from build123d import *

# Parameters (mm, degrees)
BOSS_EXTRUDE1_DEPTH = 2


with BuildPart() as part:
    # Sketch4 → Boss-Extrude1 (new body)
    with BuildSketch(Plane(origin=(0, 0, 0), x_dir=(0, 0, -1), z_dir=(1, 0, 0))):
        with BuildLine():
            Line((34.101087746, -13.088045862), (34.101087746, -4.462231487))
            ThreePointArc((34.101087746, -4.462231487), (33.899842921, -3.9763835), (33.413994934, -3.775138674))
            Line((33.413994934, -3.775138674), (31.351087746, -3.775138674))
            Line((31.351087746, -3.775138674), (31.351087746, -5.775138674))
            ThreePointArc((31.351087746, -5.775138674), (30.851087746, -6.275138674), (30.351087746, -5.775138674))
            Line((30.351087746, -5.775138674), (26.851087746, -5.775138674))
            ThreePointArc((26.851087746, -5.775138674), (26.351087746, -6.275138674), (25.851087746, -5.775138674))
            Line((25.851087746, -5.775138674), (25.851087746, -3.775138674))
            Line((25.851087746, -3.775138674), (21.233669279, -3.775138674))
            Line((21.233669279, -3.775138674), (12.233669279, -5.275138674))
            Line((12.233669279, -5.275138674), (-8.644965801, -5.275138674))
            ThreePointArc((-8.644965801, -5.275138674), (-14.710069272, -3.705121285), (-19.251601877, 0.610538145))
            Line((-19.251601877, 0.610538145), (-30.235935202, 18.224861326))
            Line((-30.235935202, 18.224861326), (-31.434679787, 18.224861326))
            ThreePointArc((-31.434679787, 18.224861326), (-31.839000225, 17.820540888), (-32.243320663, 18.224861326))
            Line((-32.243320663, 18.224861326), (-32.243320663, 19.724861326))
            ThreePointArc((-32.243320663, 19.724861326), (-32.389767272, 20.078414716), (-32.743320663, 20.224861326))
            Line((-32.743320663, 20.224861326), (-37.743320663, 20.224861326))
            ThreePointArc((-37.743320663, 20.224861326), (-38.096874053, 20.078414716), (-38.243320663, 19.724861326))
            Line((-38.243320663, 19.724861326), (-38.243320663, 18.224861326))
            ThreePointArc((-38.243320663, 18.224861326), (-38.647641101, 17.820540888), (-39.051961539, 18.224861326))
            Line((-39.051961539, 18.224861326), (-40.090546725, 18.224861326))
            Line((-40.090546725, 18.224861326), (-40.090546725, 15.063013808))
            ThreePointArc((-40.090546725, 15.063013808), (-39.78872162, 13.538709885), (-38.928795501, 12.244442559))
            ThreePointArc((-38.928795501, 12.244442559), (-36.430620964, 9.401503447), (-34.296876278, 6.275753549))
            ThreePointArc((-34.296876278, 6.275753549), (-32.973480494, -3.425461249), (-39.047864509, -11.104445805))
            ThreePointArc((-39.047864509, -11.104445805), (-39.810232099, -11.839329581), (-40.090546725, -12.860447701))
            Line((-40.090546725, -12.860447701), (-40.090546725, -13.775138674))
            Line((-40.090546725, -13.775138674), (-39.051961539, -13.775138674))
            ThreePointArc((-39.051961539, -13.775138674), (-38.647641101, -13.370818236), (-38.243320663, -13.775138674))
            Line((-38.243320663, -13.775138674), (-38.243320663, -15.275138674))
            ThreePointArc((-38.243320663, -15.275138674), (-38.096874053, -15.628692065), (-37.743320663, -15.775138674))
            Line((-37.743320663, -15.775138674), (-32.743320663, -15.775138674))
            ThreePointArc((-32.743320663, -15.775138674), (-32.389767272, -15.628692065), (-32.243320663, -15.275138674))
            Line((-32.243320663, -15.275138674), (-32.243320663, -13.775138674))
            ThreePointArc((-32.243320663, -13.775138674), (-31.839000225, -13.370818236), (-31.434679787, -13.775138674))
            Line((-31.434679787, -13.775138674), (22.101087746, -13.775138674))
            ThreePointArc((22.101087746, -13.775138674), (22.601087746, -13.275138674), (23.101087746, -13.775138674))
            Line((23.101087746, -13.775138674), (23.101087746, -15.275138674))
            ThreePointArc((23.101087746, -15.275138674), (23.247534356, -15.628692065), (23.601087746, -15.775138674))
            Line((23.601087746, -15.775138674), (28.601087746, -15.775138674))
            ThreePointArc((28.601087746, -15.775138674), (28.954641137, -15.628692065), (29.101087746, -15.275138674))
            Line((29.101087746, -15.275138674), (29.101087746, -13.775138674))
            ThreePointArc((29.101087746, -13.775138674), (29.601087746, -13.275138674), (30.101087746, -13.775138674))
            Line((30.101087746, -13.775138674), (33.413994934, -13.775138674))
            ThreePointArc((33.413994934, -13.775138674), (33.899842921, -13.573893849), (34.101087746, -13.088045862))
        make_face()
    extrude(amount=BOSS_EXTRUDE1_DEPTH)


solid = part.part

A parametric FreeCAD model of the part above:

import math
import FreeCAD as App
import Part
import Sketcher

V = App.Vector
Q = App.Units.Quantity

doc = App.newDocument("Part")
params = doc.addObject("Spreadsheet::Sheet", "Params")
for row, (alias, value) in enumerate([
    ("sketch1_radius", "4 mm"),
    ("sketch1_radius2", "2 mm"),
    ("sketch1_radius3", "0.5 mm"),
    ("sketch1_radius4", "12.5 mm"),
    ("sketch1_width", "2 mm"),
    ("pad1_length", "2 mm"),
], start=1):
    params.set(f"A{row}", alias)
    params.set(f"B{row}", "=" + value)
    params.setAlias(f"B{row}", alias)

body = doc.addObject("PartDesign::Body", "Body")

# Sketch on YZ plane
sketch1 = doc.addObject("Sketcher::SketchObject", "Sketch")
body.addObject(sketch1)
sketch1.AttachmentSupport = (doc.YZ_Plane, [""])
sketch1.MapMode = "FlatFace"
sketch1.addGeometry(Part.LineSegment(V(-13.09, -34.1, 0), V(-4.46, -34.1, 0)), False)
sketch1.addGeometry(Part.ArcOfCircle(Part.Circle(V(-4.46, -33.41, 0), V(0, 0, 1), 0.69), math.radians(-90), math.radians(0)), False)
sketch1.addGeometry(Part.LineSegment(V(-3.78, -33.41, 0), V(-3.78, -31.35, 0)), False)
sketch1.addGeometry(Part.LineSegment(V(-3.78, -31.35, 0), V(-5.78, -31.35, 0)), False)
sketch1.addGeometry(Part.ArcOfCircle(Part.Circle(V(-5.78, -30.85, 0), V(0, 0, 1), 0.5), math.radians(90), math.radians(270)), False)
sketch1.addGeometry(Part.LineSegment(V(-5.78, -30.35, 0), V(-5.78, -26.85, 0)), False)
sketch1.addGeometry(Part.ArcOfCircle(Part.Circle(V(-5.78, -26.35, 0), V(0, 0, 1), 0.5), math.radians(90), math.radians(270)), False)
sketch1.addGeometry(Part.LineSegment(V(-5.78, -25.85, 0), V(-3.78, -25.85, 0)), False)
sketch1.addGeometry(Part.LineSegment(V(-3.78, -25.85, 0), V(-3.78, -21.23, 0)), False)
sketch1.addGeometry(Part.LineSegment(V(-3.78, -21.23, 0), V(-5.28, -12.23, 0)), False)
sketch1.addGeometry(Part.LineSegment(V(-5.28, -12.23, 0), V(-5.28, 8.64, 0)), False)
sketch1.addGeometry(Part.ArcOfCircle(Part.Circle(V(7.22, 8.64, 0), V(0, 0, 1), 12.5), math.radians(122), math.radians(180)), False)
sketch1.addGeometry(Part.LineSegment(V(0.61, 19.25, 0), V(18.22, 30.24, 0)), False)
sketch1.addGeometry(Part.LineSegment(V(18.22, 30.24, 0), V(18.22, 31.43, 0)), False)
sketch1.addGeometry(Part.ArcOfCircle(Part.Circle(V(18.22, 31.84, 0), V(0, 0, 1), 0.4), math.radians(90), math.radians(270)), False)
sketch1.addGeometry(Part.LineSegment(V(18.22, 32.24, 0), V(19.72, 32.24, 0)), False)
sketch1.addGeometry(Part.ArcOfCircle(Part.Circle(V(19.72, 32.74, 0), V(0, 0, 1), 0.5), math.radians(-90), math.radians(0)), False)
sketch1.addGeometry(Part.LineSegment(V(20.22, 32.74, 0), V(20.22, 37.74, 0)), False)
sketch1.addGeometry(Part.ArcOfCircle(Part.Circle(V(19.72, 37.74, 0), V(0, 0, 1), 0.5), math.radians(0), math.radians(90)), False)
sketch1.addGeometry(Part.LineSegment(V(19.72, 38.24, 0), V(18.22, 38.24, 0)), False)
sketch1.addGeometry(Part.ArcOfCircle(Part.Circle(V(18.22, 38.65, 0), V(0, 0, 1), 0.4), math.radians(90), math.radians(270)), False)
sketch1.addGeometry(Part.LineSegment(V(18.22, 39.05, 0), V(18.22, 40.09, 0)), False)
sketch1.addGeometry(Part.LineSegment(V(18.22, 40.09, 0), V(15.06, 40.09, 0)), False)
sketch1.addGeometry(Part.ArcOfCircle(Part.Circle(V(15.06, 36.09, 0), V(0, 0, 1), 4), math.radians(90), math.radians(135)), False)
sketch1.addGeometry(Part.ArcOfCircle(Part.Circle(V(-9.63, 60.96, 0), V(0, 0, 1), 31.05), math.radians(-59.18), math.radians(-45.2)), False)
sketch1.addGeometry(Part.ArcOfCircle(Part.Circle(V(-0.13, 45.03, 0), V(0, 0, 1), 12.5), math.radians(-151), math.radians(-59)), False)
sketch1.addGeometry(Part.ArcOfCircle(Part.Circle(V(-12.86, 38.09, 0), V(0, 0, 1), 2), math.radians(29), math.radians(90)), False)
sketch1.addGeometry(Part.LineSegment(V(-12.86, 40.09, 0), V(-13.78, 40.09, 0)), False)
sketch1.addGeometry(Part.LineSegment(V(-13.78, 40.09, 0), V(-13.78, 39.05, 0)), False)
sketch1.addGeometry(Part.ArcOfCircle(Part.Circle(V(-13.78, 38.65, 0), V(0, 0, 1), 0.4), math.radians(-90), math.radians(90)), False)
sketch1.addGeometry(Part.LineSegment(V(-13.78, 38.24, 0), V(-15.28, 38.24, 0)), False)
sketch1.addGeometry(Part.ArcOfCircle(Part.Circle(V(-15.28, 37.74, 0), V(0, 0, 1), 0.5), math.radians(90), math.radians(180)), False)
sketch1.addGeometry(Part.LineSegment(V(-15.78, 37.74, 0), V(-15.78, 32.74, 0)), False)
sketch1.addGeometry(Part.ArcOfCircle(Part.Circle(V(-15.28, 32.74, 0), V(0, 0, 1), 0.5), math.radians(180), math.radians(270)), False)
sketch1.addGeometry(Part.LineSegment(V(-15.28, 32.24, 0), V(-13.78, 32.24, 0)), False)
sketch1.addGeometry(Part.ArcOfCircle(Part.Circle(V(-13.78, 31.84, 0), V(0, 0, 1), 0.4), math.radians(-90), math.radians(90)), False)
sketch1.addGeometry(Part.LineSegment(V(-13.78, 31.43, 0), V(-13.78, -22.1, 0)), False)
sketch1.addGeometry(Part.ArcOfCircle(Part.Circle(V(-13.78, -22.6, 0), V(0, 0, 1), 0.5), math.radians(-90), math.radians(90)), False)
sketch1.addGeometry(Part.LineSegment(V(-13.78, -23.1, 0), V(-15.28, -23.1, 0)), False)
sketch1.addGeometry(Part.ArcOfCircle(Part.Circle(V(-15.28, -23.6, 0), V(0, 0, 1), 0.5), math.radians(90), math.radians(180)), False)
sketch1.addGeometry(Part.LineSegment(V(-15.78, -23.6, 0), V(-15.78, -28.6, 0)), False)
sketch1.addGeometry(Part.ArcOfCircle(Part.Circle(V(-15.28, -28.6, 0), V(0, 0, 1), 0.5), math.radians(180), math.radians(270)), False)
sketch1.addGeometry(Part.LineSegment(V(-15.28, -29.1, 0), V(-13.78, -29.1, 0)), False)
sketch1.addGeometry(Part.ArcOfCircle(Part.Circle(V(-13.78, -29.6, 0), V(0, 0, 1), 0.5), math.radians(-90), math.radians(90)), False)
sketch1.addGeometry(Part.LineSegment(V(-13.78, -30.1, 0), V(-13.78, -33.41, 0)), False)
sketch1.addGeometry(Part.ArcOfCircle(Part.Circle(V(-13.09, -33.41, 0), V(0, 0, 1), 0.69), math.radians(180), math.radians(270)), False)
sketch1.addConstraint(Sketcher.Constraint("Tangent", 0, 2, 1, 1))
sketch1.addConstraint(Sketcher.Constraint("Tangent", 1, 2, 2, 1))
sketch1.addConstraint(Sketcher.Constraint("Coincident", 2, 2, 3, 1))
sketch1.addConstraint(Sketcher.Constraint("Tangent", 3, 2, 4, 2))
sketch1.addConstraint(Sketcher.Constraint("Coincident", 4, 1, 5, 1))
sketch1.addConstraint(Sketcher.Constraint("Coincident", 5, 2, 6, 2))
sketch1.addConstraint(Sketcher.Constraint("Tangent", 6, 1, 7, 1))
sketch1.addConstraint(Sketcher.Constraint("Coincident", 7, 2, 8, 1))
sketch1.addConstraint(Sketcher.Constraint("Coincident", 8, 2, 9, 1))
sketch1.addConstraint(Sketcher.Constraint("Coincident", 9, 2, 10, 1))
sketch1.addConstraint(Sketcher.Constraint("Tangent", 10, 2, 11, 2))
sketch1.addConstraint(Sketcher.Constraint("Tangent", 11, 1, 12, 1))
sketch1.addConstraint(Sketcher.Constraint("Coincident", 12, 2, 13, 1))
sketch1.addConstraint(Sketcher.Constraint("Coincident", 13, 2, 14, 2))
sketch1.addConstraint(Sketcher.Constraint("Tangent", 14, 1, 15, 1))
sketch1.addConstraint(Sketcher.Constraint("Tangent", 15, 2, 16, 1))
sketch1.addConstraint(Sketcher.Constraint("Tangent", 16, 2, 17, 1))
sketch1.addConstraint(Sketcher.Constraint("Tangent", 17, 2, 18, 1))
sketch1.addConstraint(Sketcher.Constraint("Tangent", 18, 2, 19, 1))
sketch1.addConstraint(Sketcher.Constraint("Tangent", 19, 2, 20, 2))
sketch1.addConstraint(Sketcher.Constraint("Coincident", 20, 1, 21, 1))
sketch1.addConstraint(Sketcher.Constraint("Coincident", 21, 2, 22, 1))
sketch1.addConstraint(Sketcher.Constraint("Tangent", 22, 2, 23, 1))
sketch1.addConstraint(Sketcher.Constraint("Tangent", 23, 2, 24, 2))
sketch1.addConstraint(Sketcher.Constraint("Tangent", 24, 1, 25, 2))
sketch1.addConstraint(Sketcher.Constraint("Tangent", 25, 1, 26, 1))
sketch1.addConstraint(Sketcher.Constraint("Tangent", 26, 2, 27, 1))
sketch1.addConstraint(Sketcher.Constraint("Coincident", 27, 2, 28, 1))
sketch1.addConstraint(Sketcher.Constraint("Coincident", 28, 2, 29, 2))
sketch1.addConstraint(Sketcher.Constraint("Tangent", 29, 1, 30, 1))
sketch1.addConstraint(Sketcher.Constraint("Tangent", 30, 2, 31, 1))
sketch1.addConstraint(Sketcher.Constraint("Tangent", 31, 2, 32, 1))
sketch1.addConstraint(Sketcher.Constraint("Tangent", 32, 2, 33, 1))
sketch1.addConstraint(Sketcher.Constraint("Tangent", 33, 2, 34, 1))
sketch1.addConstraint(Sketcher.Constraint("Tangent", 34, 2, 35, 2))
sketch1.addConstraint(Sketcher.Constraint("Coincident", 35, 1, 36, 1))
sketch1.addConstraint(Sketcher.Constraint("Coincident", 36, 2, 37, 2))
sketch1.addConstraint(Sketcher.Constraint("Tangent", 37, 1, 38, 1))
sketch1.addConstraint(Sketcher.Constraint("Tangent", 38, 2, 39, 1))
sketch1.addConstraint(Sketcher.Constraint("Tangent", 39, 2, 40, 1))
sketch1.addConstraint(Sketcher.Constraint("Tangent", 40, 2, 41, 1))
sketch1.addConstraint(Sketcher.Constraint("Tangent", 41, 2, 42, 1))
sketch1.addConstraint(Sketcher.Constraint("Tangent", 42, 2, 43, 2))
sketch1.addConstraint(Sketcher.Constraint("Coincident", 43, 1, 44, 1))
sketch1.addConstraint(Sketcher.Constraint("Tangent", 44, 2, 45, 1))
sketch1.addConstraint(Sketcher.Constraint("Tangent", 45, 2, 0, 1))
sketch1.addConstraint(Sketcher.Constraint("Horizontal", 0))
sketch1.addConstraint(Sketcher.Constraint("Vertical", 2))
sketch1.addConstraint(Sketcher.Constraint("Horizontal", 3))
sketch1.addConstraint(Sketcher.Constraint("Vertical", 5))
sketch1.addConstraint(Sketcher.Constraint("Horizontal", 7))
sketch1.addConstraint(Sketcher.Constraint("Vertical", 8))
sketch1.addConstraint(Sketcher.Constraint("Vertical", 10))
sketch1.addConstraint(Sketcher.Constraint("Vertical", 13))
sketch1.addConstraint(Sketcher.Constraint("Horizontal", 15))
sketch1.addConstraint(Sketcher.Constraint("Vertical", 17))
sketch1.addConstraint(Sketcher.Constraint("Horizontal", 19))
sketch1.addConstraint(Sketcher.Constraint("Vertical", 21))
sketch1.addConstraint(Sketcher.Constraint("Horizontal", 22))
sketch1.addConstraint(Sketcher.Constraint("Horizontal", 27))
sketch1.addConstraint(Sketcher.Constraint("Vertical", 28))
sketch1.addConstraint(Sketcher.Constraint("Horizontal", 30))
sketch1.addConstraint(Sketcher.Constraint("Vertical", 32))
sketch1.addConstraint(Sketcher.Constraint("Horizontal", 34))
sketch1.addConstraint(Sketcher.Constraint("Vertical", 36))
sketch1.addConstraint(Sketcher.Constraint("Horizontal", 38))
sketch1.addConstraint(Sketcher.Constraint("Vertical", 40))
sketch1.addConstraint(Sketcher.Constraint("Horizontal", 42))
sketch1.addConstraint(Sketcher.Constraint("Vertical", 44))
sketch1.addConstraint(Sketcher.Constraint("Equal", 4, 6))
sketch1.addConstraint(Sketcher.Constraint("Equal", 6, 16))
sketch1.addConstraint(Sketcher.Constraint("Equal", 16, 18))
sketch1.addConstraint(Sketcher.Constraint("Equal", 14, 20))
sketch1.addConstraint(Sketcher.Constraint("Equal", 11, 25))
sketch1.addConstraint(Sketcher.Constraint("Equal", 20, 29))
sketch1.addConstraint(Sketcher.Constraint("Equal", 18, 31))
sketch1.addConstraint(Sketcher.Constraint("Equal", 31, 33))
sketch1.addConstraint(Sketcher.Constraint("Equal", 29, 35))
sketch1.addConstraint(Sketcher.Constraint("Equal", 33, 37))
sketch1.addConstraint(Sketcher.Constraint("Equal", 37, 39))
sketch1.addConstraint(Sketcher.Constraint("Equal", 39, 41))
sketch1.addConstraint(Sketcher.Constraint("Equal", 41, 43))
sketch1.addConstraint(Sketcher.Constraint("Equal", 1, 45))
sketch1.addConstraint(Sketcher.Constraint("Horizontal", 20, 3, 29, 3))
sketch1.addConstraint(Sketcher.Constraint("Horizontal", 16, 3, 33, 3))
sketch1.addConstraint(Sketcher.Constraint("Horizontal", 22, 2, 26, 2))
sketch1.addConstraint(Sketcher.Constraint("Vertical", 4, 3, 6, 3))
sketch1.addConstraint(Sketcher.Constraint("Vertical", 14, 3, 20, 3))
sketch1.addConstraint(Sketcher.Constraint("Vertical", 29, 3, 35, 3))
sketch1.addConstraint(Sketcher.Constraint("Vertical", 35, 3, 37, 3))
sketch1.addConstraint(Sketcher.Constraint("Vertical", 33, 3, 39, 3))
sketch1.addConstraint(Sketcher.Constraint("Vertical", 37, 3, 43, 3))
sketch1.addConstraint(Sketcher.Constraint("Vertical", 3, 2, 4, 1))
sketch1.addConstraint(Sketcher.Constraint("Vertical", 2, 2, 7, 2))
sketch1.addConstraint(Sketcher.Constraint("Vertical", 20, 3, 12, 2))
sketch1.addConstraint(Sketcher.Constraint("Vertical", 19, 2, 20, 1))
sketch1.addConstraint(Sketcher.Constraint("Vertical", 43, 3, 27, 2))
sketch1.addConstraint(Sketcher.Constraint("Vertical", 34, 2, 35, 1))
sketch1.addConstraint(Sketcher.Constraint("Vertical", 42, 2, 43, 1))
sketch1.addConstraint(Sketcher.Constraint("Equal", 19, 30))
sketch1.addConstraint(Sketcher.Constraint("Equal", 32, 40))
sketch1.addConstraint(Sketcher.Constraint("Radius", 23, Q("4 mm")))
sketch1.addConstraint(Sketcher.Constraint("Radius", 26, Q("2 mm")))
sketch1.addConstraint(Sketcher.Constraint("Radius", 4, Q("0.5 mm")))
sketch1.addConstraint(Sketcher.Constraint("Radius", 11, Q("12.5 mm")))
sketch1.addConstraint(Sketcher.Constraint("DistanceX", 3, 2, 3, 1, Q("2 mm")))
sketch1.addConstraint(Sketcher.Constraint("DistanceY", 17, 1, 17, 2, Q("5 mm")))
sketch1.addConstraint(Sketcher.Constraint("DistanceX", 15, 1, 15, 2, Q("1.5 mm")))
sketch1.addConstraint(Sketcher.Constraint("DistanceY", 5, 1, 5, 2, Q("3.5 mm")))
sketch1.addConstraint(Sketcher.Constraint("Radius", 14, Q("0.40432 mm")))
sketch1.addConstraint(Sketcher.Constraint("Radius", 24, Q("31.05008 mm")))
sketch1.addConstraint(Sketcher.Constraint("DistanceY", -1, 1, 14, 3, Q("31.839 mm")))
sketch1.addConstraint(Sketcher.Constraint("Radius", 1, Q("0.687093 mm")))
sketch1.addConstraint(Sketcher.Constraint("DistanceX", 27, 2, 27, 1, Q("0.914691 mm")))
sketch1.addConstraint(Sketcher.Constraint("DistanceY", 8, 1, 8, 2, Q("4.617418 mm")))
sketch1.addConstraint(Sketcher.Constraint("DistanceY", -1, 1, 25, 3, Q("45.031101 mm")))
sketch1.addConstraint(Sketcher.Constraint("DistanceY", -1, 1, 11, 1, Q("19.251602 mm")))
sketch1.addConstraint(Sketcher.Constraint("Distance", 12, Q("20.758612 mm")))
sketch1.addConstraint(Sketcher.Constraint("DistanceX", 0, 1, 0, 2, Q("8.625814 mm")))
sketch1.addConstraint(Sketcher.Constraint("DistanceX", 22, 2, 22, 1, Q("3.161848 mm")))
sketch1.addConstraint(Sketcher.Constraint("DistanceY", 2, 1, 2, 2, Q("2.062907 mm")))
sketch1.addConstraint(Sketcher.Constraint("DistanceY", 10, 1, 10, 2, Q("20.878635 mm")))
sketch1.addConstraint(Sketcher.Constraint("DistanceY", 13, 1, 13, 2, Q("1.198745 mm")))
sketch1.addConstraint(Sketcher.Constraint("DistanceY", 21, 1, 21, 2, Q("1.038585 mm")))
sketch1.addConstraint(Sketcher.Constraint("DistanceY", 36, 2, 36, 1, Q("53.535768 mm")))
sketch1.addConstraint(Sketcher.Constraint("DistanceY", 44, 2, 44, 1, Q("3.312907 mm")))
sketch1.addConstraint(Sketcher.Constraint("DistanceX", 1, 3, -1, 1, Q("4.462231 mm")))
sketch1.addConstraint(Sketcher.Constraint("DistanceX", -1, 1, 11, 3, Q("7.224861 mm")))
sketch1.setExpression("Constraints[101]", "Params.sketch1_radius")
sketch1.setExpression("Constraints[102]", "Params.sketch1_radius2")
sketch1.setExpression("Constraints[103]", "Params.sketch1_radius3")
sketch1.setExpression("Constraints[104]", "Params.sketch1_radius4")
sketch1.setExpression("Constraints[105]", "Params.sketch1_width")
pad1 = doc.addObject("PartDesign::Pad", "Pad")
body.addObject(pad1)
pad1.Profile = sketch1
pad1.setExpression("Length", "Params.pad1_length")

doc.recompute()
